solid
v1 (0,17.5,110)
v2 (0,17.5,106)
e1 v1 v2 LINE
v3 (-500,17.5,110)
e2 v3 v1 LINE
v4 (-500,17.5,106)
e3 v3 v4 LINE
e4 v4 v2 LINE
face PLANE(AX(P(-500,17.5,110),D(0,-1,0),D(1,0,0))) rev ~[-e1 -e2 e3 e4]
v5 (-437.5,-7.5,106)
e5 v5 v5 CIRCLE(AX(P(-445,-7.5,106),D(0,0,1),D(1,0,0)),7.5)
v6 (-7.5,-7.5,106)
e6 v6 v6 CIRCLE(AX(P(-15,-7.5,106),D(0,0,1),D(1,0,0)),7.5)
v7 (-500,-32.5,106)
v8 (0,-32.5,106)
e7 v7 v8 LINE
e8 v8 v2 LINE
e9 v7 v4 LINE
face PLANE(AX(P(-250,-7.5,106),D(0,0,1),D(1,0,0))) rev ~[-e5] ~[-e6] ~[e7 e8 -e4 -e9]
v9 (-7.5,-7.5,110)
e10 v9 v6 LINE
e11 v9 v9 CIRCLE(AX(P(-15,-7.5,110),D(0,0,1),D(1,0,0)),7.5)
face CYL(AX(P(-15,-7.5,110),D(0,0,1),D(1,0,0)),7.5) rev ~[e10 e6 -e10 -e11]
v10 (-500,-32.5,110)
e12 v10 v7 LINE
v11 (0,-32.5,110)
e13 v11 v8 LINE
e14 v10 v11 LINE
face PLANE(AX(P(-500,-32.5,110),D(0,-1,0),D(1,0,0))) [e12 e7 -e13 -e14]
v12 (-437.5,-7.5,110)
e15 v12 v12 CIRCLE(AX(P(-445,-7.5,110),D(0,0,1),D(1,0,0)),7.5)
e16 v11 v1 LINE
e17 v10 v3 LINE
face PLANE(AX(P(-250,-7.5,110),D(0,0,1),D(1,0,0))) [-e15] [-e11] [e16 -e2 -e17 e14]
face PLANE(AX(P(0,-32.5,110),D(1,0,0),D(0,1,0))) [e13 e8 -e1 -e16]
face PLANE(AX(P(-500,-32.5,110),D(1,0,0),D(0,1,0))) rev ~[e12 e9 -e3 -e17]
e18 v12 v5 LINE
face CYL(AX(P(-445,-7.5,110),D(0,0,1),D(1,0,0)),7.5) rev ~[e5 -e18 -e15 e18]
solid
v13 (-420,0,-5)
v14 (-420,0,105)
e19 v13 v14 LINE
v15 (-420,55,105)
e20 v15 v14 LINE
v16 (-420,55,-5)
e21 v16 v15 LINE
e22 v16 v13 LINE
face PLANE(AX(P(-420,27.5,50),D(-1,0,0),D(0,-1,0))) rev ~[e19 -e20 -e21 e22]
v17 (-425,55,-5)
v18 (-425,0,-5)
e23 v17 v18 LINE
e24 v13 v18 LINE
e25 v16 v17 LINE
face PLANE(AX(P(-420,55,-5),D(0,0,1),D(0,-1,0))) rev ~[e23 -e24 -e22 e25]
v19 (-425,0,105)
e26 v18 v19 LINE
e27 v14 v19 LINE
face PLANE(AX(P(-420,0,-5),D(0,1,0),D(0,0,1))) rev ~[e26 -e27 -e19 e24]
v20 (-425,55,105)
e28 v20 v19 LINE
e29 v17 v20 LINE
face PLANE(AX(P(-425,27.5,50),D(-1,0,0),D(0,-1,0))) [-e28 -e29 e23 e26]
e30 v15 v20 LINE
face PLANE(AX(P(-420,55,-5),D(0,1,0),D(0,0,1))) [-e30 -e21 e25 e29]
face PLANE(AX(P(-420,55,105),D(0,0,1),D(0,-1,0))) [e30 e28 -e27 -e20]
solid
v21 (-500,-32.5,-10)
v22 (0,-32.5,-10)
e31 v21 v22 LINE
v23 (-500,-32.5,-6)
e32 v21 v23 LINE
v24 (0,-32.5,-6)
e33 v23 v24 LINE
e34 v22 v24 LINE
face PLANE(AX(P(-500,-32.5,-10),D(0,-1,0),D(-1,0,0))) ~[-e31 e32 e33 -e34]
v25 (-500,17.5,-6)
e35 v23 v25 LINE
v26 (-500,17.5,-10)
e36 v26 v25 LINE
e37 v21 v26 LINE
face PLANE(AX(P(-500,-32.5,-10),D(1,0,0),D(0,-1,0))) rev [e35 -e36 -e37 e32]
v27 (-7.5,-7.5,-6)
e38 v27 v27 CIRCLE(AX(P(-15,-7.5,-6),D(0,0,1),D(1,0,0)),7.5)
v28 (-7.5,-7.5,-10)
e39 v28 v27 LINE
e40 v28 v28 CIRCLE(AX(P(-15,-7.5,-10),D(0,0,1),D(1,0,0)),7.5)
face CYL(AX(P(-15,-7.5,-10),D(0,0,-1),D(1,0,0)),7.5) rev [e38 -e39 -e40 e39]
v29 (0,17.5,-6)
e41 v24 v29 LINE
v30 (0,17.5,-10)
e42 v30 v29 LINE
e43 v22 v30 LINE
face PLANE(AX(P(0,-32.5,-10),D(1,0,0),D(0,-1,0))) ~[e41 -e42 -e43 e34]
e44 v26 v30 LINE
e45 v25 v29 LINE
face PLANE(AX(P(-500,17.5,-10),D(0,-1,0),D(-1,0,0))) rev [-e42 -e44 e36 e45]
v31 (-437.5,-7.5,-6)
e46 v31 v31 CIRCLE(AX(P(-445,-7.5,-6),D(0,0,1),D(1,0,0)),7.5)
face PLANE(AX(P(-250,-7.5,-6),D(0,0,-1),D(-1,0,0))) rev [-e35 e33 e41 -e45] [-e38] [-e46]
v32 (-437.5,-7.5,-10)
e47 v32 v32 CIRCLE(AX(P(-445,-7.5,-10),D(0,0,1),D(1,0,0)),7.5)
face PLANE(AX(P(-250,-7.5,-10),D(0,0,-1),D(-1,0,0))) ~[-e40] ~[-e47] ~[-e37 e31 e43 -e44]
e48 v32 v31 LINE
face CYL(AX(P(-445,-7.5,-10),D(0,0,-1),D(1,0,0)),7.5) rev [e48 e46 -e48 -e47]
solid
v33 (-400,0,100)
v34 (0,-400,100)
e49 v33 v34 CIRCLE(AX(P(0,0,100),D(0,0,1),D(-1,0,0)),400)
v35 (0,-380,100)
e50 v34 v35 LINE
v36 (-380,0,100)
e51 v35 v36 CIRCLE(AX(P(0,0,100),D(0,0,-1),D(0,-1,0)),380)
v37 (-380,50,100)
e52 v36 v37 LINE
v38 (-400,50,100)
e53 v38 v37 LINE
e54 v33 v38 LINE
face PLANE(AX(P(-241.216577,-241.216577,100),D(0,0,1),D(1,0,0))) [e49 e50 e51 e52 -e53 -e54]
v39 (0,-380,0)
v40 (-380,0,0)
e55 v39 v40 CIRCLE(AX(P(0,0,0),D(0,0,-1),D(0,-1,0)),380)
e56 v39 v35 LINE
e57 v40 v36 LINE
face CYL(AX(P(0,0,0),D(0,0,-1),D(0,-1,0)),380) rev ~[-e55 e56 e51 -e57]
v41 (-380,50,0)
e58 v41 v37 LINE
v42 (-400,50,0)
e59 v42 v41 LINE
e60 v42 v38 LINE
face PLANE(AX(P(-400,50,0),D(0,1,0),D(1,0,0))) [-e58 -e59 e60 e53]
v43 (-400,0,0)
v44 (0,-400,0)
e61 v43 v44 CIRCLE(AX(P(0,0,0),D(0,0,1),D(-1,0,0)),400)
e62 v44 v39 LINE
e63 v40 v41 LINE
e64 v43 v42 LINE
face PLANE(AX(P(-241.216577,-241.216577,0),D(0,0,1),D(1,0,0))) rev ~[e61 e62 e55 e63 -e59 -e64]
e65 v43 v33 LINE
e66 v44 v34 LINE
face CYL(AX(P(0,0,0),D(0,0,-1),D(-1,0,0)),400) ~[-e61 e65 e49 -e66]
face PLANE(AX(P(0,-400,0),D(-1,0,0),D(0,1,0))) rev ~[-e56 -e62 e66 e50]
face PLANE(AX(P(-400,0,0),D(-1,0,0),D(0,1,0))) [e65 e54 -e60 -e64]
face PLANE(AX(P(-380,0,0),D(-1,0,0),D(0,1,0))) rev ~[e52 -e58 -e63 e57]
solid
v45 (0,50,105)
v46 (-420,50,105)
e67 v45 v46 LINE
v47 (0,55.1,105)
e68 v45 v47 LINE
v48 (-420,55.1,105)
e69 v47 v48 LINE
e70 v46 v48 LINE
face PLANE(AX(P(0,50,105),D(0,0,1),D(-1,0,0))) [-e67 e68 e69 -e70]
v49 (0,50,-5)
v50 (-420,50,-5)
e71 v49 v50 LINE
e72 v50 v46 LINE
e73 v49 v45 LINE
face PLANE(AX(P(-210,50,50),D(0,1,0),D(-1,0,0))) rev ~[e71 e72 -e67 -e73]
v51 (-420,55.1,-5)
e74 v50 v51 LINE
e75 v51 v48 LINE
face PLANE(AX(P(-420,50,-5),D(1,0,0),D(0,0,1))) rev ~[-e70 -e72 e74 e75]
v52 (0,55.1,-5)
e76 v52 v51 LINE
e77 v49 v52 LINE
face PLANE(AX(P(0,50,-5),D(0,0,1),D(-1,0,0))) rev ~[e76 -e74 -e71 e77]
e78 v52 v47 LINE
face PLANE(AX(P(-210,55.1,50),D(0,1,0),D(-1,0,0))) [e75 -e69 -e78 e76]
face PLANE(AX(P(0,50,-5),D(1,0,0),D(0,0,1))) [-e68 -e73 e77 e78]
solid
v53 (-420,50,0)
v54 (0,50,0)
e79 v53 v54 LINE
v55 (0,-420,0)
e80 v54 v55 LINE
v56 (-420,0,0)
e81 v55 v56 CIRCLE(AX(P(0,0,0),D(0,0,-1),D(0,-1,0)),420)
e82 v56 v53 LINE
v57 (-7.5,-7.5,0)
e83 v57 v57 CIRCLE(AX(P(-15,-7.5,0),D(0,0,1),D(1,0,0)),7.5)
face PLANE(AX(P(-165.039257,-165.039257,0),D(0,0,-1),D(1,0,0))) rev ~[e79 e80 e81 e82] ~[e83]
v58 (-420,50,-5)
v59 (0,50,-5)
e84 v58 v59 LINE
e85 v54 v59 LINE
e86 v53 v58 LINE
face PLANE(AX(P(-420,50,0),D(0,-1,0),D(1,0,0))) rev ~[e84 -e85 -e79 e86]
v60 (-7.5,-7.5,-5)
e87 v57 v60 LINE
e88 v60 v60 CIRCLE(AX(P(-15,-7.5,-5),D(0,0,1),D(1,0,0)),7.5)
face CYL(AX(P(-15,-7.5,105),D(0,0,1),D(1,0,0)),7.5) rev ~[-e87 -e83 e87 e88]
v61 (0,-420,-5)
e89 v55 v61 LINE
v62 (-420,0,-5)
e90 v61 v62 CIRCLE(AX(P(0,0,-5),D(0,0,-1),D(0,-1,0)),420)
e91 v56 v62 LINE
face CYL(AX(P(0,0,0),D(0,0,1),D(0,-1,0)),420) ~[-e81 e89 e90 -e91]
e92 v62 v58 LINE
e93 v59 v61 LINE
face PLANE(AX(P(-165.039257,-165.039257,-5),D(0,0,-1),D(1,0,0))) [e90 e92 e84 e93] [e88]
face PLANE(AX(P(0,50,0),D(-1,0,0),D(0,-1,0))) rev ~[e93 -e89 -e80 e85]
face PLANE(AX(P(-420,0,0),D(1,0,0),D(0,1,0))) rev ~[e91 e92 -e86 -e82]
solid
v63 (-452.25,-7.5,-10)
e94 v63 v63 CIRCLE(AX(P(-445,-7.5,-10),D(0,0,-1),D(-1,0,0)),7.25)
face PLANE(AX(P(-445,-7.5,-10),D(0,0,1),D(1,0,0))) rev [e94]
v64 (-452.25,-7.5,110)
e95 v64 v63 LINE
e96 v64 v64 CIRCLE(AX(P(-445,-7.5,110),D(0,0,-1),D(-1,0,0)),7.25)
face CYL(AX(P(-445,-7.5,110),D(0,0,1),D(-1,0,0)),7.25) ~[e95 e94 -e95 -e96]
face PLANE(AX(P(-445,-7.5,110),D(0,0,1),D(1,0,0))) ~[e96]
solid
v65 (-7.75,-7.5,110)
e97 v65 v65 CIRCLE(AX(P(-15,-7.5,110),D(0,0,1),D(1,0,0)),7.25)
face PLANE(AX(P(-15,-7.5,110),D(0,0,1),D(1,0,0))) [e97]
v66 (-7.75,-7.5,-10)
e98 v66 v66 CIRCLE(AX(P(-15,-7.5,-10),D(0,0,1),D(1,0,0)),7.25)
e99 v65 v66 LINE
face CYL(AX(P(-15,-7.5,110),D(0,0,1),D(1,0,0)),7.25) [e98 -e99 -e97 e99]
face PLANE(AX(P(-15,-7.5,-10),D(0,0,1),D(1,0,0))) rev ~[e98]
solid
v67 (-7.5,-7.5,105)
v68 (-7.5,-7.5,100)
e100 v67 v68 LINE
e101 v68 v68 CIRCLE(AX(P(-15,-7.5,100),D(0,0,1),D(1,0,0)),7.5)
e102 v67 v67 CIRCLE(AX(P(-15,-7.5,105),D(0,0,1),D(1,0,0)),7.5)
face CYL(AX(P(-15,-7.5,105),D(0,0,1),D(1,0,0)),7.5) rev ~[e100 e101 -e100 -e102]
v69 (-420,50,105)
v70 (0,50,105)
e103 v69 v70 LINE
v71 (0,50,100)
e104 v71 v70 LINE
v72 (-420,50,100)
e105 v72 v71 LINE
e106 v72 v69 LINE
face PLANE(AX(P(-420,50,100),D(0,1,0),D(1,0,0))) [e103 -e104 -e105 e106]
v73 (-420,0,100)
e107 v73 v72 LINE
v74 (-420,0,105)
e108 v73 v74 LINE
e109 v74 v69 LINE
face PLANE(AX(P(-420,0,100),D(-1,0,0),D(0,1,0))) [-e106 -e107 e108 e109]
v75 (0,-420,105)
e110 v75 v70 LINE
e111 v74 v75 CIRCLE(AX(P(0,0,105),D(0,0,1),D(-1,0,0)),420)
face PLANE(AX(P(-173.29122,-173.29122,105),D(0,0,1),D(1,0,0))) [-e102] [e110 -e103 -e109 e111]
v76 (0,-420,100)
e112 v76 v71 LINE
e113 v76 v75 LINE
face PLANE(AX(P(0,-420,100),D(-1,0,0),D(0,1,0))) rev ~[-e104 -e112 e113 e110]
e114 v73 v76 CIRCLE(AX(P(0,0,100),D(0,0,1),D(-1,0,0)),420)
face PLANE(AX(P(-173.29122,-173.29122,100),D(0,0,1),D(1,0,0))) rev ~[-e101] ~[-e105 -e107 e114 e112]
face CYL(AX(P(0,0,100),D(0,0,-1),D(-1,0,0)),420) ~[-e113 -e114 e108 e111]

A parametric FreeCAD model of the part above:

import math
import FreeCAD as App
import Part
import Sketcher
Q = App.Units.Quantity

doc = App.newDocument("Part")
params = doc.addObject("Spreadsheet::Sheet", "Params")
for row, (alias, value) in enumerate([
    ("sketch1_radius", "380 mm"),
    ("sketch1_radius2", "400 mm"),
    ("sketch1_height", "50 mm"),
    ("pad1_length", "100 mm"),
    ("sketch2_radius", "420 mm"),
    ("sketch2_height", "50 mm"),
    ("pad2_length", "5 mm"),
    ("sketch3_radius", "420 mm"),
    ("sketch3_height", "470 mm"),
    ("pad3_length", "5 mm"),
    ("sketch4_width", "420 mm"),
    ("sketch4_height", "110 mm"),
    ("pad4_length", "5.1 mm"),
    ("sketch5_diameter", "15 mm"),
    ("pad5_length", "110.001 mm"),
    ("sketch6_diameter", "14.5 mm"),
    ("pad6_length", "120 mm"),
    ("sketch7_diameter", "15 mm"),
    ("sketch7_width", "500 mm"),
    ("sketch7_height", "50 mm"),
    ("pad7_length", "4 mm"),
    ("sketch8_width", "55 mm"),
    ("sketch8_height", "110 mm"),
    ("pad8_length", "5 mm"),
], start=1):
    params.set(f"A{row}", alias)
    params.set(f"B{row}", "=" + value)
    params.setAlias(f"B{row}", alias)

body = doc.addObject("PartDesign::Body", "Body")

sketch1 = body.newObject("Sketcher::SketchObject", "Sketch")
sketch1.AttachmentSupport = (doc.getObject("XY_Plane"), [""])
sketch1.MapMode = "FlatFace"
sketch1.addGeometry(Part.ArcOfCircle(Part.Circle(App.Vector(0, 0, 0), App.Vector(0, 0, 1), 380), math.radians(180), math.radians(270)), False)
sketch1.addGeometry(Part.LineSegment(App.Vector(-380, 0, 0), App.Vector(-380, 50, 0)), False)
sketch1.addGeometry(Part.LineSegment(App.Vector(-380, 50, 0), App.Vector(-400, 50, 0)), False)
sketch1.addGeometry(Part.LineSegment(App.Vector(-400, 50, 0), App.Vector(-400, 0, 0)), False)
sketch1.addGeometry(Part.ArcOfCircle(Part.Circle(App.Vector(0, 0, 0), App.Vector(0, 0, 1), 400), math.radians(180), math.radians(270)), False)
sketch1.addGeometry(Part.LineSegment(App.Vector(0, -400, 0), App.Vector(0, -380, 0)), False)
sketch1.addConstraint(Sketcher.Constraint("Tangent", 0, 1, 1, 1))
sketch1.addConstraint(Sketcher.Constraint("Coincident", 1, 2, 2, 1))
sketch1.addConstraint(Sketcher.Constraint("Coincident", 2, 2, 3, 1))
sketch1.addConstraint(Sketcher.Constraint("Tangent", 3, 2, 4, 1))
sketch1.addConstraint(Sketcher.Constraint("Coincident", 4, 2, 5, 1))
sketch1.addConstraint(Sketcher.Constraint("Coincident", 5, 2, 0, 2))
sketch1.addConstraint(Sketcher.Constraint("Vertical", 1))
sketch1.addConstraint(Sketcher.Constraint("Horizontal", 2))
sketch1.addConstraint(Sketcher.Constraint("Vertical", 3))
sketch1.addConstraint(Sketcher.Constraint("Vertical", 5))
sketch1.addConstraint(Sketcher.Constraint("Coincident", 0, 3, -1, 1))
sketch1.addConstraint(Sketcher.Constraint("Coincident", 4, 3, -1, 1))
sketch1.addConstraint(Sketcher.Constraint("PointOnObject", 5, 2, -2))
sketch1.addConstraint(Sketcher.Constraint("Radius", 0, Q("380 mm")))
sketch1.addConstraint(Sketcher.Constraint("Radius", 4, Q("400 mm")))
sketch1.addConstraint(Sketcher.Constraint("DistanceY", 1, 1, 1, 2, Q("50 mm")))
sketch1.setExpression("Constraints[13]", "Params.sketch1_radius")
sketch1.setExpression("Constraints[14]", "Params.sketch1_radius2")
sketch1.setExpression("Constraints[15]", "Params.sketch1_height")
pad1 = body.newObject("PartDesign::Pad", "Pad")
pad1.Profile = sketch1
pad1.setExpression("Length", "Params.pad1_length")
body2 = doc.addObject("PartDesign::Body", "Body001")

sketch2 = body2.newObject("Sketcher::SketchObject", "Sketch001")
sketch2.AttachmentSupport = (doc.getObject("XY_Plane001"), [""])
sketch2.MapMode = "FlatFace"
sketch2.addGeometry(Part.LineSegment(App.Vector(-420, 0, 0), App.Vector(-420, 50, 0)), False)
sketch2.addGeometry(Part.LineSegment(App.Vector(-420, 50, 0), App.Vector(0, 50, 0)), False)
sketch2.addGeometry(Part.LineSegment(App.Vector(0, 50, 0), App.Vector(0, -420, 0)), False)
sketch2.addGeometry(Part.ArcOfCircle(Part.Circle(App.Vector(0, 0, 0), App.Vector(0, 0, 1), 420), math.radians(180), math.radians(270)), False)
sketch2.addConstraint(Sketcher.Constraint("Coincident", 0, 2, 1, 1))
sketch2.addConstraint(Sketcher.Constraint("Coincident", 1, 2, 2, 1))
sketch2.addConstraint(Sketcher.Constraint("Coincident", 2, 2, 3, 2))
sketch2.addConstraint(Sketcher.Constraint("Tangent", 3, 1, 0, 1))
sketch2.addConstraint(Sketcher.Constraint("Vertical", 0))
sketch2.addConstraint(Sketcher.Constraint("Horizontal", 1))
sketch2.addConstraint(Sketcher.Constraint("Vertical", 2))
sketch2.addConstraint(Sketcher.Constraint("Coincident", 3, 3, -1, 1))
sketch2.addConstraint(Sketcher.Constraint("PointOnObject", 1, 2, -2))
sketch2.addConstraint(Sketcher.Constraint("Radius", 3, Q("420 mm")))
sketch2.addConstraint(Sketcher.Constraint("DistanceY", 0, 1, 0, 2, Q("50 mm")))
sketch2.setExpression("Constraints[9]", "Params.sketch2_radius")
sketch2.setExpression("Constraints[10]", "Params.sketch2_height")
pad2 = body2.newObject("PartDesign::Pad", "Pad001")
pad2.Profile = sketch2
pad2.setExpression("Length", "Params.pad2_length")
pad2.Reversed = True
body3 = doc.addObject("PartDesign::Body", "Body002")

sketch3 = body3.newObject("Sketcher::SketchObject", "Sketch002")
sketch3.AttachmentSupport = (doc.getObject("XY_Plane002"), [""])
sketch3.MapMode = "FlatFace"
sketch3.AttachmentOffset = App.Placement(App.Vector(0, 0, 100), App.Rotation())
sketch3.addGeometry(Part.LineSegment(App.Vector(0, -420, 0), App.Vector(0, 50, 0)), False)
sketch3.addGeometry(Part.LineSegment(App.Vector(0, 50, 0), App.Vector(-420, 50, 0)), False)
sketch3.addGeometry(Part.LineSegment(App.Vector(-420, 50, 0), App.Vector(-420, 0, 0)), False)
sketch3.addGeometry(Part.ArcOfCircle(Part.Circle(App.Vector(0, 0, 0), App.Vector(0, 0, 1), 420), math.radians(180), math.radians(270)), False)
sketch3.addConstraint(Sketcher.Constraint("Coincident", 0, 2, 1, 1))
sketch3.addConstraint(Sketcher.Constraint("Coincident", 1, 2, 2, 1))
sketch3.addConstraint(Sketcher.Constraint("Tangent", 2, 2, 3, 1))
sketch3.addConstraint(Sketcher.Constraint("Coincident", 3, 2, 0, 1))
sketch3.addConstraint(Sketcher.Constraint("Vertical", 0))
sketch3.addConstraint(Sketcher.Constraint("Horizontal", 1))
sketch3.addConstraint(Sketcher.Constraint("Vertical", 2))
sketch3.addConstraint(Sketcher.Constraint("Coincident", 3, 3, -1, 1))
sketch3.addConstraint(Sketcher.Constraint("PointOnObject", 0, 2, -2))
sketch3.addConstraint(Sketcher.Constraint("Radius", 3, Q("420 mm")))
sketch3.addConstraint(Sketcher.Constraint("DistanceY", 0, 1, 0, 2, Q("470 mm")))
sketch3.setExpression("Constraints[9]", "Params.sketch3_radius")
sketch3.setExpression("Constraints[10]", "Params.sketch3_height")
pad3 = body3.newObject("PartDesign::Pad", "Pad002")
pad3.Profile = sketch3
pad3.setExpression("Length", "Params.pad3_length")
body4 = doc.addObject("PartDesign::Body", "Body003")

sketch4 = body4.newObject("Sketcher::SketchObject", "Sketch003")
sketch4.AttachmentSupport = (doc.getObject("XZ_Plane003"), [""])
sketch4.MapMode = "FlatFace"
sketch4.AttachmentOffset = App.Placement(App.Vector(0, 0, -50), App.Rotation())
sketch4.addGeometry(Part.LineSegment(App.Vector(0, 105, 0), App.Vector(0, -5, 0)), False)
sketch4.addGeometry(Part.LineSegment(App.Vector(0, -5, 0), App.Vector(-420, -5, 0)), False)
sketch4.addGeometry(Part.LineSegment(App.Vector(-420, -5, 0), App.Vector(-420, 105, 0)), False)
sketch4.addGeometry(Part.LineSegment(App.Vector(-420, 105, 0), App.Vector(0, 105, 0)), False)
sketch4.addConstraint(Sketcher.Constraint("Coincident", 0, 2, 1, 1))
sketch4.addConstraint(Sketcher.Constraint("Coincident", 1, 2, 2, 1))
sketch4.addConstraint(Sketcher.Constraint("Coincident", 2, 2, 3, 1))
sketch4.addConstraint(Sketcher.Constraint("Coincident", 3, 2, 0, 1))
sketch4.addConstraint(Sketcher.Constraint("Vertical", 0))
sketch4.addConstraint(Sketcher.Constraint("Horizontal", 1))
sketch4.addConstraint(Sketcher.Constraint("Vertical", 2))
sketch4.addConstraint(Sketcher.Constraint("Horizontal", 3))
sketch4.addConstraint(Sketcher.Constraint("PointOnObject", 0, 2, -2))
sketch4.addConstraint(Sketcher.Constraint("DistanceX", 1, 2, 1, 1, Q("420 mm")))
sketch4.addConstraint(Sketcher.Constraint("DistanceY", 0, 2, 0, 1, Q("110 mm")))
sketch4.addConstraint(Sketcher.Constraint("DistanceY", 0, 2, -1, 1, Q("5 mm")))
sketch4.setExpression("Constraints[9]", "Params.sketch4_width")
sketch4.setExpression("Constraints[10]", "Params.sketch4_height")
pad4 = body4.newObject("PartDesign::Pad", "Pad003")
pad4.Profile = sketch4
pad4.setExpression("Length", "Params.pad4_length")
pad4.Reversed = True
body5 = doc.addObject("PartDesign::Body", "Body004")

sketch5 = body5.newObject("Sketcher::SketchObject", "Sketch004")
sketch5.AttachmentSupport = (doc.getObject("XY_Plane004"), [""])
sketch5.MapMode = "FlatFace"
sketch5.AttachmentOffset = App.Placement(App.Vector(0, 0, 105), App.Rotation())
sketch5.addGeometry(Part.Circle(App.Vector(-15, -8, 0), App.Vector(0, 0, 1), 8), False)
sketch5.addConstraint(Sketcher.Constraint("Diameter", 0, Q("15 mm")))
sketch5.addConstraint(Sketcher.Constraint("DistanceX", 0, 3, -1, 1, Q("15 mm")))
sketch5.addConstraint(Sketcher.Constraint("DistanceY", 0, 3, -1, 1, Q("7.5 mm")))
sketch5.setExpression("Constraints[0]", "Params.sketch5_diameter")
pad5 = body5.newObject("PartDesign::Pad", "Pad004")
pad5.Profile = sketch5
pad5.setExpression("Length", "Params.pad5_length")
pad5.Reversed = True
doc.recompute()

body6 = doc.addObject("PartDesign::Body", "Body005")
body6.BaseFeature = body5
boolean = body2.newObject("PartDesign::Boolean", "Boolean")
boolean.Type = "Cut"
boolean.addObjects([body6])
doc.recompute()

boolean2 = body3.newObject("PartDesign::Boolean", "Boolean001")
boolean2.Type = "Cut"
boolean2.addObjects([body5])
body7 = doc.addObject("PartDesign::Body", "Body006")

sketch6 = body7.newObject("Sketcher::SketchObject", "Sketch005")
sketch6.AttachmentSupport = (doc.getObject("XY_Plane006"), [""])
sketch6.MapMode = "FlatFace"
sketch6.AttachmentOffset = App.Placement(App.Vector(0, 0, 110), App.Rotation())
sketch6.addGeometry(Part.Circle(App.Vector(-15, -8, 0), App.Vector(0, 0, 1), 7), False)
sketch6.addConstraint(Sketcher.Constraint("Diameter", 0, Q("14.5 mm")))
sketch6.addConstraint(Sketcher.Constraint("DistanceX", 0, 3, -1, 1, Q("15 mm")))
sketch6.addConstraint(Sketcher.Constraint("DistanceY", 0, 3, -1, 1, Q("7.5 mm")))
sketch6.setExpression("Constraints[0]", "Params.sketch6_diameter")
pad6 = body7.newObject("PartDesign::Pad", "Pad005")
pad6.Profile = sketch6
pad6.setExpression("Length", "Params.pad6_length")
pad6.Reversed = True
body8 = doc.addObject("PartDesign::Body", "Body007")

sketch7 = body8.newObject("Sketcher::SketchObject", "Sketch006")
sketch7.AttachmentSupport = (doc.getObject("XY_Plane007"), [""])
sketch7.MapMode = "FlatFace"
sketch7.AttachmentOffset = App.Placement(App.Vector(0, 0, 110), App.Rotation())
sketch7.addGeometry(Part.LineSegment(App.Vector(-500, 18, 0), App.Vector(-500, -32, 0)), False)
sketch7.addGeometry(Part.LineSegment(App.Vector(-500, -32, 0), App.Vector(0, -32, 0)), False)
sketch7.addGeometry(Part.LineSegment(App.Vector(0, -32, 0), App.Vector(0, 18, 0)), False)
sketch7.addGeometry(Part.LineSegment(App.Vector(0, 18, 0), App.Vector(-500, 18, 0)), False)
sketch7.addGeometry(Part.Circle(App.Vector(-445, -8, 0), App.Vector(0, 0, 1), 8), False)
sketch7.addGeometry(Part.Circle(App.Vector(-15, -8, 0), App.Vector(0, 0, 1), 8), False)
sketch7.addConstraint(Sketcher.Constraint("Coincident", 0, 2, 1, 1))
sketch7.addConstraint(Sketcher.Constraint("Coincident", 1, 2, 2, 1))
sketch7.addConstraint(Sketcher.Constraint("Coincident", 2, 2, 3, 1))
sketch7.addConstraint(Sketcher.Constraint("Coincident", 3, 2, 0, 1))
sketch7.addConstraint(Sketcher.Constraint("Vertical", 0))
sketch7.addConstraint(Sketcher.Constraint("Horizontal", 1))
sketch7.addConstraint(Sketcher.Constraint("Vertical", 2))
sketch7.addConstraint(Sketcher.Constraint("Horizontal", 3))
sketch7.addConstraint(Sketcher.Constraint("Equal", 4, 5))
sketch7.addConstraint(Sketcher.Constraint("PointOnObject", 1, 2, -2))
sketch7.addConstraint(Sketcher.Constraint("Horizontal", 4, 3, 5, 3))
sketch7.addConstraint(Sketcher.Constraint("Diameter", 4, Q("15 mm")))
sketch7.addConstraint(Sketcher.Constraint("DistanceX", 1, 1, 1, 2, Q("500 mm")))
sketch7.addConstraint(Sketcher.Constraint("DistanceY", 0, 2, 0, 1, Q("50 mm")))
sketch7.addConstraint(Sketcher.Constraint("DistanceX", 4, 3, -1, 1, Q("445 mm")))
sketch7.addConstraint(Sketcher.Constraint("DistanceX", 5, 3, -1, 1, Q("15 mm")))
sketch7.addConstraint(Sketcher.Constraint("DistanceY", 0, 2, 4, 3, Q("25 mm")))
sketch7.addConstraint(Sketcher.Constraint("DistanceY", 4, 3, -1, 1, Q("7.5 mm")))
sketch7.setExpression("Constraints[11]", "Params.sketch7_diameter")
sketch7.setExpression("Constraints[12]", "Params.sketch7_width")
sketch7.setExpression("Constraints[13]", "Params.sketch7_height")
pad7 = body8.newObject("PartDesign::Pad", "Pad006")
pad7.Profile = sketch7
pad7.setExpression("Length", "Params.pad7_length")
pad7.Reversed = True
body9 = doc.addObject("PartDesign::Body", "Body008")
doc.recompute()

mirroring = doc.addObject("Part::Mirroring", "Mirroring")
mirroring.Source = body8
mirroring.Base = App.Vector(-259.025952, -227.710424, 50)
mirroring.Normal = App.Vector(0, 0, 1)
body9.BaseFeature = mirroring
doc.recompute()
body10 = doc.addObject("PartDesign::Body", "Body009")
doc.recompute()

mirroring2 = doc.addObject("Part::Mirroring", "Mirroring001")
mirroring2.Source = body7
mirroring2.Base = App.Vector(-230, -185, 102.5)
mirroring2.Normal = App.Vector(1, 0, 0)
body10.BaseFeature = mirroring2
doc.recompute()
body11 = doc.addObject("PartDesign::Body", "Body010")

sketch8 = body11.newObject("Sketcher::SketchObject", "Sketch007")
sketch8.AttachmentSupport = (doc.getObject("YZ_Plane010"), [""])
sketch8.MapMode = "FlatFace"
sketch8.AttachmentOffset = App.Placement(App.Vector(0, 0, -420), App.Rotation())
sketch8.addGeometry(Part.LineSegment(App.Vector(55, 105, 0), App.Vector(55, -5, 0)), False)
sketch8.addGeometry(Part.LineSegment(App.Vector(55, -5, 0), App.Vector(0, -5, 0)), False)
sketch8.addGeometry(Part.LineSegment(App.Vector(0, -5, 0), App.Vector(0, 105, 0)), False)
sketch8.addGeometry(Part.LineSegment(App.Vector(0, 105, 0), App.Vector(55, 105, 0)), False)
sketch8.addConstraint(Sketcher.Constraint("Coincident", 0, 2, 1, 1))
sketch8.addConstraint(Sketcher.Constraint("Coincident", 1, 2, 2, 1))
sketch8.addConstraint(Sketcher.Constraint("Coincident", 2, 2, 3, 1))
sketch8.addConstraint(Sketcher.Constraint("Coincident", 3, 2, 0, 1))
sketch8.addConstraint(Sketcher.Constraint("Vertical", 0))
sketch8.addConstraint(Sketcher.Constraint("Horizontal", 1))
sketch8.addConstraint(Sketcher.Constraint("Vertical", 2))
sketch8.addConstraint(Sketcher.Constraint("Horizontal", 3))
sketch8.addConstraint(Sketcher.Constraint("PointOnObject", 1, 2, -2))
sketch8.addConstraint(Sketcher.Constraint("DistanceX", 1, 2, 1, 1, Q("55 mm")))
sketch8.addConstraint(Sketcher.Constraint("DistanceY", 0, 2, 0, 1, Q("110 mm")))
sketch8.addConstraint(Sketcher.Constraint("DistanceY", 0, 2, -1, 1, Q("5 mm")))
sketch8.setExpression("Constraints[9]", "Params.sketch8_width")
sketch8.setExpression("Constraints[10]", "Params.sketch8_height")
pad8 = body11.newObject("PartDesign::Pad", "Pad007")
pad8.Profile = sketch8
pad8.setExpression("Length", "Params.pad8_length")
pad8.Reversed = True
mirroring.Visibility = False
mirroring2.Visibility = False

doc.recompute()
